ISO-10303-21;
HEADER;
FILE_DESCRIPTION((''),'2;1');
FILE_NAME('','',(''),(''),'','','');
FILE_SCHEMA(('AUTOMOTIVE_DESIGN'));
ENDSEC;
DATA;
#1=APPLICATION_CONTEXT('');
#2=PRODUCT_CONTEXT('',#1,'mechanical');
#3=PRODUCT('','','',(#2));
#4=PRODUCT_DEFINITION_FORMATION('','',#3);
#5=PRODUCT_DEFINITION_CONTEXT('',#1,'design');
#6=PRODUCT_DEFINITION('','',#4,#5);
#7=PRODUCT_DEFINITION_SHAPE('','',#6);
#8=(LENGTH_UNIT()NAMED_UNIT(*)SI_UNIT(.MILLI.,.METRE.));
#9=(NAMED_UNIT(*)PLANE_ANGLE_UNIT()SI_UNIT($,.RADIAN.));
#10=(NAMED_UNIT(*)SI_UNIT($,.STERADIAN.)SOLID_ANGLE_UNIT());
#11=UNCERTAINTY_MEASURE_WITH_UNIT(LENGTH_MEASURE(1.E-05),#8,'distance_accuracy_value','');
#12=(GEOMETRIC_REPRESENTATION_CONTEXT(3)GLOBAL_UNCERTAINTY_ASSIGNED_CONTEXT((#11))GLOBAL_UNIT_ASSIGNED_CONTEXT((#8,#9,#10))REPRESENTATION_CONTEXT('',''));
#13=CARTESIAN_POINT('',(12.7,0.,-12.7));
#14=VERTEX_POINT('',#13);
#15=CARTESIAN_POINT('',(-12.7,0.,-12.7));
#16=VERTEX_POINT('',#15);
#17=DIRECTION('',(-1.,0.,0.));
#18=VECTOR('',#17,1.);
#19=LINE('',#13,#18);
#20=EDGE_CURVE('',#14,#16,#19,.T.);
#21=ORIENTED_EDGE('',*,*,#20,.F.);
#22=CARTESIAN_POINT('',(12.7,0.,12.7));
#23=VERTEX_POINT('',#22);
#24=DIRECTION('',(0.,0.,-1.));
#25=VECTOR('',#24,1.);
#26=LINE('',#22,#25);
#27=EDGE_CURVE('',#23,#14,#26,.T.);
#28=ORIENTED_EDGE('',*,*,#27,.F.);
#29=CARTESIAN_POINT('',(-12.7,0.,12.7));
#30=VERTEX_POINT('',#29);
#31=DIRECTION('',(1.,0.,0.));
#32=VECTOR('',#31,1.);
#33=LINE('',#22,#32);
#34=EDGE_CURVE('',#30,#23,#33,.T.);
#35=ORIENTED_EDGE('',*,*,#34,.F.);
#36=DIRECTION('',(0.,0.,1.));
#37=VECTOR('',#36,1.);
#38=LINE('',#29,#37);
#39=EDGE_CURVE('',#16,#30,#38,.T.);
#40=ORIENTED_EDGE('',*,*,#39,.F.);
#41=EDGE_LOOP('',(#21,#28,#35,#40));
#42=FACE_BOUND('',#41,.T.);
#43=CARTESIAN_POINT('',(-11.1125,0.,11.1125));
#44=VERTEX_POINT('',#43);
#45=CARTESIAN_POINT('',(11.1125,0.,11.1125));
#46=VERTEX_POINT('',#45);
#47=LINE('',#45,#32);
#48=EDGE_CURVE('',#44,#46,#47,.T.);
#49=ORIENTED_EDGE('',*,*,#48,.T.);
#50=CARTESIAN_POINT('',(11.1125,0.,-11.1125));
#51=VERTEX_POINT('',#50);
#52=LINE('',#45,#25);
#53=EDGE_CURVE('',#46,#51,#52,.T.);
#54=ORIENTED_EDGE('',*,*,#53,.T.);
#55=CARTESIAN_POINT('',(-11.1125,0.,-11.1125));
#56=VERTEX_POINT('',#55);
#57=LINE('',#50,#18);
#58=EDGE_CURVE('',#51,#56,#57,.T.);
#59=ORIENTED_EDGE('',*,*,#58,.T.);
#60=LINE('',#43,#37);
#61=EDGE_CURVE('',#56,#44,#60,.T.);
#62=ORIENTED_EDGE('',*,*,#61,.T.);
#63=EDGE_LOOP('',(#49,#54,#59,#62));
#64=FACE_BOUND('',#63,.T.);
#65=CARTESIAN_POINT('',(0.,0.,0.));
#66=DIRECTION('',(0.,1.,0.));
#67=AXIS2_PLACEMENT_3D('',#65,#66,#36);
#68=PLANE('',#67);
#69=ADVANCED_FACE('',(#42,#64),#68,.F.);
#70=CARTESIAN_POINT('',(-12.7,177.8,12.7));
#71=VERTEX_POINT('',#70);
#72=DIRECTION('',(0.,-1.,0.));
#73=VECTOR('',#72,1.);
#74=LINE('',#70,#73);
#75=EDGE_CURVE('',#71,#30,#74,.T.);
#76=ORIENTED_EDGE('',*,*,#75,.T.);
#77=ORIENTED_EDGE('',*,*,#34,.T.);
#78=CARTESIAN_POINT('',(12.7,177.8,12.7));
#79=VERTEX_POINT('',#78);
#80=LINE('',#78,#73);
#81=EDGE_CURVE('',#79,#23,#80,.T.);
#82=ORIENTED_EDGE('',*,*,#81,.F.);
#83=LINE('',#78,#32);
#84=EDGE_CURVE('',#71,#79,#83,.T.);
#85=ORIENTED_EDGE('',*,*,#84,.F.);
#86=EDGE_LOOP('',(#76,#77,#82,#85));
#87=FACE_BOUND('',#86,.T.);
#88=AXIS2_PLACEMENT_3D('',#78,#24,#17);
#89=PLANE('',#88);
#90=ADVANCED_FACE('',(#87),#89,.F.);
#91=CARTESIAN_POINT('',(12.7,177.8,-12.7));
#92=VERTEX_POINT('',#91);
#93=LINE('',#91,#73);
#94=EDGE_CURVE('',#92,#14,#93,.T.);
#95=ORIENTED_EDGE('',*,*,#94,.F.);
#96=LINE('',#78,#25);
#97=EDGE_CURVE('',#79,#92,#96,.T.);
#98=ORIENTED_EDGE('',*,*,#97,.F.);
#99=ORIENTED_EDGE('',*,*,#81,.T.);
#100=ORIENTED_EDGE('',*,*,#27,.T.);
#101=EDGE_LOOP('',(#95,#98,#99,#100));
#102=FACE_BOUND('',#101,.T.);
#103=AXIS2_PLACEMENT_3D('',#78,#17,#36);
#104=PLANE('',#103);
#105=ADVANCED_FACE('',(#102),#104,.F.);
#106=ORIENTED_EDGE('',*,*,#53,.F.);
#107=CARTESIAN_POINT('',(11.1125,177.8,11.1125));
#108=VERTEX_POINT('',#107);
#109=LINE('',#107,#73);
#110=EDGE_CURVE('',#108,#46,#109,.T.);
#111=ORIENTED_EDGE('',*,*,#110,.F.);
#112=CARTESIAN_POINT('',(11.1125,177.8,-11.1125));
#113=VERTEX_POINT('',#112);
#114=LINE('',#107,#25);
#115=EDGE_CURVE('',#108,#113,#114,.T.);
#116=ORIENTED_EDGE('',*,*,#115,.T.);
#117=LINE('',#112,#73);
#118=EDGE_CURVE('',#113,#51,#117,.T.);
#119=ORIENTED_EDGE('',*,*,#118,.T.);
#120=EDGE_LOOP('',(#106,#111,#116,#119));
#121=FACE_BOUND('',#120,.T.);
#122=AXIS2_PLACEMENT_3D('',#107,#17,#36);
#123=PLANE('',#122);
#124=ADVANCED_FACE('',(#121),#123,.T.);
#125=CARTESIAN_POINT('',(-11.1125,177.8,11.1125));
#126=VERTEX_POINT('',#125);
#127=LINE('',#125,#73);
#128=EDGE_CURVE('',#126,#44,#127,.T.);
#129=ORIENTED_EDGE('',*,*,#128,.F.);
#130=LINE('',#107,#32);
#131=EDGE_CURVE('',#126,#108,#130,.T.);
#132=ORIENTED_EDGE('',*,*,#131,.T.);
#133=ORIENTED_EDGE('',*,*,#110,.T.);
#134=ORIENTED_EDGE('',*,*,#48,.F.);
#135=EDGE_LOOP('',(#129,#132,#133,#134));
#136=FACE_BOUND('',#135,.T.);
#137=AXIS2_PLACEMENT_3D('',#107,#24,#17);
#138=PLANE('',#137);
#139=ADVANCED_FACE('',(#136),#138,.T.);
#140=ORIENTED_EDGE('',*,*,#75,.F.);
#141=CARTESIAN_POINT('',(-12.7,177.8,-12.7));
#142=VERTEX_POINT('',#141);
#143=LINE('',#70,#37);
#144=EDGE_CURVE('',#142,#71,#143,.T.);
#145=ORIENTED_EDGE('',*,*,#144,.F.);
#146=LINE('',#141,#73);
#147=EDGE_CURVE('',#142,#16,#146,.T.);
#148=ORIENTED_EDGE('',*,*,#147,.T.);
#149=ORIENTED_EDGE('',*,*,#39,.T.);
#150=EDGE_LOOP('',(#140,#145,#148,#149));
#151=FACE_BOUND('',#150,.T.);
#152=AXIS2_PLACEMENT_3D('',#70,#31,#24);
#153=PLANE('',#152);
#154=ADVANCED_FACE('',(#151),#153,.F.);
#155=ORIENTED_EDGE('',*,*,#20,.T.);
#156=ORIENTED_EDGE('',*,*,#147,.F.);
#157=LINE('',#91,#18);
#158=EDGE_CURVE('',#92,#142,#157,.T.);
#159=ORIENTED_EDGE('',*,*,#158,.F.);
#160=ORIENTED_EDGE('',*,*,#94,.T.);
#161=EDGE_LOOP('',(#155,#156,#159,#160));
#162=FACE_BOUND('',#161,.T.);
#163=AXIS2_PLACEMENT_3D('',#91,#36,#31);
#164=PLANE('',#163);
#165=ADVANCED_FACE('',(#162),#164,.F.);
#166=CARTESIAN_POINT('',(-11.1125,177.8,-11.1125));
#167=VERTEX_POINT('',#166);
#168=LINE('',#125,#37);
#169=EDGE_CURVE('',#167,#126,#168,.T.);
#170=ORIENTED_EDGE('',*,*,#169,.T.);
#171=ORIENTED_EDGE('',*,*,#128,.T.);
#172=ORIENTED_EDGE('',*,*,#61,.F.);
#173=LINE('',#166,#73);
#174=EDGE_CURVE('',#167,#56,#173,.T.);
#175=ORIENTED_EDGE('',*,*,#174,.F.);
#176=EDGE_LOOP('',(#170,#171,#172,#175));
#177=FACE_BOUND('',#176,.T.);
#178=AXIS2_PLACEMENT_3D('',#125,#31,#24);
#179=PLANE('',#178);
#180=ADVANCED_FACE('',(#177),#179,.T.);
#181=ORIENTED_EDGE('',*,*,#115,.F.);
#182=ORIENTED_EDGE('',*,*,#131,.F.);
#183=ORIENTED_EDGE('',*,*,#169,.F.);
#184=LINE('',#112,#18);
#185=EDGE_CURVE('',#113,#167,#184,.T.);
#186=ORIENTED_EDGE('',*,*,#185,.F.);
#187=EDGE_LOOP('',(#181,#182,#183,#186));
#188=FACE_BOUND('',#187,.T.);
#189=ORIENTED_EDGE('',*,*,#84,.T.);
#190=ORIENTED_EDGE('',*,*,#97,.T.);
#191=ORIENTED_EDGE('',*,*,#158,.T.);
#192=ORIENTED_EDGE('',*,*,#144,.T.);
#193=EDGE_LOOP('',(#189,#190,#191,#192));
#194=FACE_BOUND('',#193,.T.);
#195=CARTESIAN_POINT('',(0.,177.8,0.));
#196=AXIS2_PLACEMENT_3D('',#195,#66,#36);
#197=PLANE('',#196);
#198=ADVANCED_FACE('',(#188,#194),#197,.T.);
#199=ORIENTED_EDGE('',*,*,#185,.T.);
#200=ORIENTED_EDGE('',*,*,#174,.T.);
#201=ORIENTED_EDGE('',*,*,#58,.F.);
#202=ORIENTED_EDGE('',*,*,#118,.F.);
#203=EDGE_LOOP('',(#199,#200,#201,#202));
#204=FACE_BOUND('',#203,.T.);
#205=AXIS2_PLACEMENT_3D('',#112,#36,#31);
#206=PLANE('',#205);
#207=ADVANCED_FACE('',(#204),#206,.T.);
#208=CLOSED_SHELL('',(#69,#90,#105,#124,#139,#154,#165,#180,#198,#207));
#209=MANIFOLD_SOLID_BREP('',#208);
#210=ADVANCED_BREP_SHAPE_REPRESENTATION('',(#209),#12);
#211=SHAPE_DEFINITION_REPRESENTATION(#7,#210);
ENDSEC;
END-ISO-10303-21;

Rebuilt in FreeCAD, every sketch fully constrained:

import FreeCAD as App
import Part
import Sketcher

V = App.Vector
Q = App.Units.Quantity

doc = App.newDocument("Part")
body = doc.addObject("PartDesign::Body", "Body")

# Sketch on XZ plane
sketch1 = body.newObject("Sketcher::SketchObject", "Sketch")
sketch1.AttachmentSupport = (doc.getObject("XZ_Plane"), [""])
sketch1.MapMode = "FlatFace"
sketch1.addGeometry([
    Part.LineSegment(V(-13, -13, 0), V(-13, 13, 0)),  # 0
    Part.LineSegment(V(-13, 13, 0), V(13, 13, 0)),  # 1
    Part.LineSegment(V(13, 13, 0), V(13, -13, 0)),  # 2
    Part.LineSegment(V(13, -13, 0), V(-13, -13, 0)),  # 3
    Part.LineSegment(V(11, 11, 0), V(-11, 11, 0)),  # 4
    Part.LineSegment(V(-11, 11, 0), V(-11, -11, 0)),  # 5
    Part.LineSegment(V(-11, -11, 0), V(11, -11, 0)),  # 6
    Part.LineSegment(V(11, -11, 0), V(11, 11, 0)),  # 7
], False)
sketch1.addConstraint([
    Sketcher.Constraint("Coincident", 0, 2, 1, 1),
    Sketcher.Constraint("Coincident", 1, 2, 2, 1),
    Sketcher.Constraint("Coincident", 2, 2, 3, 1),
    Sketcher.Constraint("Coincident", 3, 2, 0, 1),
    Sketcher.Constraint("Coincident", 4, 2, 5, 1),
    Sketcher.Constraint("Coincident", 5, 2, 6, 1),
    Sketcher.Constraint("Coincident", 6, 2, 7, 1),
    Sketcher.Constraint("Coincident", 7, 2, 4, 1),
    Sketcher.Constraint("Vertical", 0),
    Sketcher.Constraint("Horizontal", 1),
    Sketcher.Constraint("Vertical", 2),
    Sketcher.Constraint("Horizontal", 3),
    Sketcher.Constraint("Horizontal", 4),
    Sketcher.Constraint("Vertical", 5),
    Sketcher.Constraint("Horizontal", 6),
    Sketcher.Constraint("Vertical", 7),
    Sketcher.Constraint("Symmetric", 0, 2, 2, 2, -1, 1),
    Sketcher.Constraint("Symmetric", 4, 2, 6, 2, -1, 1),
    Sketcher.Constraint("Equal", 3, 0),
    Sketcher.Constraint("Equal", 6, 5),
    Sketcher.Constraint("DistanceX", 1, 1, 1, 2, Q("1 in")),
    Sketcher.Constraint("DistanceX", 4, 2, 4, 1, Q("0.875 in")),
])
pad1 = body.newObject("PartDesign::Pad", "Pad")
pad1.Profile = sketch1
pad1.Length = Q("7 in")
pad1.Reversed = True

doc.recompute()
